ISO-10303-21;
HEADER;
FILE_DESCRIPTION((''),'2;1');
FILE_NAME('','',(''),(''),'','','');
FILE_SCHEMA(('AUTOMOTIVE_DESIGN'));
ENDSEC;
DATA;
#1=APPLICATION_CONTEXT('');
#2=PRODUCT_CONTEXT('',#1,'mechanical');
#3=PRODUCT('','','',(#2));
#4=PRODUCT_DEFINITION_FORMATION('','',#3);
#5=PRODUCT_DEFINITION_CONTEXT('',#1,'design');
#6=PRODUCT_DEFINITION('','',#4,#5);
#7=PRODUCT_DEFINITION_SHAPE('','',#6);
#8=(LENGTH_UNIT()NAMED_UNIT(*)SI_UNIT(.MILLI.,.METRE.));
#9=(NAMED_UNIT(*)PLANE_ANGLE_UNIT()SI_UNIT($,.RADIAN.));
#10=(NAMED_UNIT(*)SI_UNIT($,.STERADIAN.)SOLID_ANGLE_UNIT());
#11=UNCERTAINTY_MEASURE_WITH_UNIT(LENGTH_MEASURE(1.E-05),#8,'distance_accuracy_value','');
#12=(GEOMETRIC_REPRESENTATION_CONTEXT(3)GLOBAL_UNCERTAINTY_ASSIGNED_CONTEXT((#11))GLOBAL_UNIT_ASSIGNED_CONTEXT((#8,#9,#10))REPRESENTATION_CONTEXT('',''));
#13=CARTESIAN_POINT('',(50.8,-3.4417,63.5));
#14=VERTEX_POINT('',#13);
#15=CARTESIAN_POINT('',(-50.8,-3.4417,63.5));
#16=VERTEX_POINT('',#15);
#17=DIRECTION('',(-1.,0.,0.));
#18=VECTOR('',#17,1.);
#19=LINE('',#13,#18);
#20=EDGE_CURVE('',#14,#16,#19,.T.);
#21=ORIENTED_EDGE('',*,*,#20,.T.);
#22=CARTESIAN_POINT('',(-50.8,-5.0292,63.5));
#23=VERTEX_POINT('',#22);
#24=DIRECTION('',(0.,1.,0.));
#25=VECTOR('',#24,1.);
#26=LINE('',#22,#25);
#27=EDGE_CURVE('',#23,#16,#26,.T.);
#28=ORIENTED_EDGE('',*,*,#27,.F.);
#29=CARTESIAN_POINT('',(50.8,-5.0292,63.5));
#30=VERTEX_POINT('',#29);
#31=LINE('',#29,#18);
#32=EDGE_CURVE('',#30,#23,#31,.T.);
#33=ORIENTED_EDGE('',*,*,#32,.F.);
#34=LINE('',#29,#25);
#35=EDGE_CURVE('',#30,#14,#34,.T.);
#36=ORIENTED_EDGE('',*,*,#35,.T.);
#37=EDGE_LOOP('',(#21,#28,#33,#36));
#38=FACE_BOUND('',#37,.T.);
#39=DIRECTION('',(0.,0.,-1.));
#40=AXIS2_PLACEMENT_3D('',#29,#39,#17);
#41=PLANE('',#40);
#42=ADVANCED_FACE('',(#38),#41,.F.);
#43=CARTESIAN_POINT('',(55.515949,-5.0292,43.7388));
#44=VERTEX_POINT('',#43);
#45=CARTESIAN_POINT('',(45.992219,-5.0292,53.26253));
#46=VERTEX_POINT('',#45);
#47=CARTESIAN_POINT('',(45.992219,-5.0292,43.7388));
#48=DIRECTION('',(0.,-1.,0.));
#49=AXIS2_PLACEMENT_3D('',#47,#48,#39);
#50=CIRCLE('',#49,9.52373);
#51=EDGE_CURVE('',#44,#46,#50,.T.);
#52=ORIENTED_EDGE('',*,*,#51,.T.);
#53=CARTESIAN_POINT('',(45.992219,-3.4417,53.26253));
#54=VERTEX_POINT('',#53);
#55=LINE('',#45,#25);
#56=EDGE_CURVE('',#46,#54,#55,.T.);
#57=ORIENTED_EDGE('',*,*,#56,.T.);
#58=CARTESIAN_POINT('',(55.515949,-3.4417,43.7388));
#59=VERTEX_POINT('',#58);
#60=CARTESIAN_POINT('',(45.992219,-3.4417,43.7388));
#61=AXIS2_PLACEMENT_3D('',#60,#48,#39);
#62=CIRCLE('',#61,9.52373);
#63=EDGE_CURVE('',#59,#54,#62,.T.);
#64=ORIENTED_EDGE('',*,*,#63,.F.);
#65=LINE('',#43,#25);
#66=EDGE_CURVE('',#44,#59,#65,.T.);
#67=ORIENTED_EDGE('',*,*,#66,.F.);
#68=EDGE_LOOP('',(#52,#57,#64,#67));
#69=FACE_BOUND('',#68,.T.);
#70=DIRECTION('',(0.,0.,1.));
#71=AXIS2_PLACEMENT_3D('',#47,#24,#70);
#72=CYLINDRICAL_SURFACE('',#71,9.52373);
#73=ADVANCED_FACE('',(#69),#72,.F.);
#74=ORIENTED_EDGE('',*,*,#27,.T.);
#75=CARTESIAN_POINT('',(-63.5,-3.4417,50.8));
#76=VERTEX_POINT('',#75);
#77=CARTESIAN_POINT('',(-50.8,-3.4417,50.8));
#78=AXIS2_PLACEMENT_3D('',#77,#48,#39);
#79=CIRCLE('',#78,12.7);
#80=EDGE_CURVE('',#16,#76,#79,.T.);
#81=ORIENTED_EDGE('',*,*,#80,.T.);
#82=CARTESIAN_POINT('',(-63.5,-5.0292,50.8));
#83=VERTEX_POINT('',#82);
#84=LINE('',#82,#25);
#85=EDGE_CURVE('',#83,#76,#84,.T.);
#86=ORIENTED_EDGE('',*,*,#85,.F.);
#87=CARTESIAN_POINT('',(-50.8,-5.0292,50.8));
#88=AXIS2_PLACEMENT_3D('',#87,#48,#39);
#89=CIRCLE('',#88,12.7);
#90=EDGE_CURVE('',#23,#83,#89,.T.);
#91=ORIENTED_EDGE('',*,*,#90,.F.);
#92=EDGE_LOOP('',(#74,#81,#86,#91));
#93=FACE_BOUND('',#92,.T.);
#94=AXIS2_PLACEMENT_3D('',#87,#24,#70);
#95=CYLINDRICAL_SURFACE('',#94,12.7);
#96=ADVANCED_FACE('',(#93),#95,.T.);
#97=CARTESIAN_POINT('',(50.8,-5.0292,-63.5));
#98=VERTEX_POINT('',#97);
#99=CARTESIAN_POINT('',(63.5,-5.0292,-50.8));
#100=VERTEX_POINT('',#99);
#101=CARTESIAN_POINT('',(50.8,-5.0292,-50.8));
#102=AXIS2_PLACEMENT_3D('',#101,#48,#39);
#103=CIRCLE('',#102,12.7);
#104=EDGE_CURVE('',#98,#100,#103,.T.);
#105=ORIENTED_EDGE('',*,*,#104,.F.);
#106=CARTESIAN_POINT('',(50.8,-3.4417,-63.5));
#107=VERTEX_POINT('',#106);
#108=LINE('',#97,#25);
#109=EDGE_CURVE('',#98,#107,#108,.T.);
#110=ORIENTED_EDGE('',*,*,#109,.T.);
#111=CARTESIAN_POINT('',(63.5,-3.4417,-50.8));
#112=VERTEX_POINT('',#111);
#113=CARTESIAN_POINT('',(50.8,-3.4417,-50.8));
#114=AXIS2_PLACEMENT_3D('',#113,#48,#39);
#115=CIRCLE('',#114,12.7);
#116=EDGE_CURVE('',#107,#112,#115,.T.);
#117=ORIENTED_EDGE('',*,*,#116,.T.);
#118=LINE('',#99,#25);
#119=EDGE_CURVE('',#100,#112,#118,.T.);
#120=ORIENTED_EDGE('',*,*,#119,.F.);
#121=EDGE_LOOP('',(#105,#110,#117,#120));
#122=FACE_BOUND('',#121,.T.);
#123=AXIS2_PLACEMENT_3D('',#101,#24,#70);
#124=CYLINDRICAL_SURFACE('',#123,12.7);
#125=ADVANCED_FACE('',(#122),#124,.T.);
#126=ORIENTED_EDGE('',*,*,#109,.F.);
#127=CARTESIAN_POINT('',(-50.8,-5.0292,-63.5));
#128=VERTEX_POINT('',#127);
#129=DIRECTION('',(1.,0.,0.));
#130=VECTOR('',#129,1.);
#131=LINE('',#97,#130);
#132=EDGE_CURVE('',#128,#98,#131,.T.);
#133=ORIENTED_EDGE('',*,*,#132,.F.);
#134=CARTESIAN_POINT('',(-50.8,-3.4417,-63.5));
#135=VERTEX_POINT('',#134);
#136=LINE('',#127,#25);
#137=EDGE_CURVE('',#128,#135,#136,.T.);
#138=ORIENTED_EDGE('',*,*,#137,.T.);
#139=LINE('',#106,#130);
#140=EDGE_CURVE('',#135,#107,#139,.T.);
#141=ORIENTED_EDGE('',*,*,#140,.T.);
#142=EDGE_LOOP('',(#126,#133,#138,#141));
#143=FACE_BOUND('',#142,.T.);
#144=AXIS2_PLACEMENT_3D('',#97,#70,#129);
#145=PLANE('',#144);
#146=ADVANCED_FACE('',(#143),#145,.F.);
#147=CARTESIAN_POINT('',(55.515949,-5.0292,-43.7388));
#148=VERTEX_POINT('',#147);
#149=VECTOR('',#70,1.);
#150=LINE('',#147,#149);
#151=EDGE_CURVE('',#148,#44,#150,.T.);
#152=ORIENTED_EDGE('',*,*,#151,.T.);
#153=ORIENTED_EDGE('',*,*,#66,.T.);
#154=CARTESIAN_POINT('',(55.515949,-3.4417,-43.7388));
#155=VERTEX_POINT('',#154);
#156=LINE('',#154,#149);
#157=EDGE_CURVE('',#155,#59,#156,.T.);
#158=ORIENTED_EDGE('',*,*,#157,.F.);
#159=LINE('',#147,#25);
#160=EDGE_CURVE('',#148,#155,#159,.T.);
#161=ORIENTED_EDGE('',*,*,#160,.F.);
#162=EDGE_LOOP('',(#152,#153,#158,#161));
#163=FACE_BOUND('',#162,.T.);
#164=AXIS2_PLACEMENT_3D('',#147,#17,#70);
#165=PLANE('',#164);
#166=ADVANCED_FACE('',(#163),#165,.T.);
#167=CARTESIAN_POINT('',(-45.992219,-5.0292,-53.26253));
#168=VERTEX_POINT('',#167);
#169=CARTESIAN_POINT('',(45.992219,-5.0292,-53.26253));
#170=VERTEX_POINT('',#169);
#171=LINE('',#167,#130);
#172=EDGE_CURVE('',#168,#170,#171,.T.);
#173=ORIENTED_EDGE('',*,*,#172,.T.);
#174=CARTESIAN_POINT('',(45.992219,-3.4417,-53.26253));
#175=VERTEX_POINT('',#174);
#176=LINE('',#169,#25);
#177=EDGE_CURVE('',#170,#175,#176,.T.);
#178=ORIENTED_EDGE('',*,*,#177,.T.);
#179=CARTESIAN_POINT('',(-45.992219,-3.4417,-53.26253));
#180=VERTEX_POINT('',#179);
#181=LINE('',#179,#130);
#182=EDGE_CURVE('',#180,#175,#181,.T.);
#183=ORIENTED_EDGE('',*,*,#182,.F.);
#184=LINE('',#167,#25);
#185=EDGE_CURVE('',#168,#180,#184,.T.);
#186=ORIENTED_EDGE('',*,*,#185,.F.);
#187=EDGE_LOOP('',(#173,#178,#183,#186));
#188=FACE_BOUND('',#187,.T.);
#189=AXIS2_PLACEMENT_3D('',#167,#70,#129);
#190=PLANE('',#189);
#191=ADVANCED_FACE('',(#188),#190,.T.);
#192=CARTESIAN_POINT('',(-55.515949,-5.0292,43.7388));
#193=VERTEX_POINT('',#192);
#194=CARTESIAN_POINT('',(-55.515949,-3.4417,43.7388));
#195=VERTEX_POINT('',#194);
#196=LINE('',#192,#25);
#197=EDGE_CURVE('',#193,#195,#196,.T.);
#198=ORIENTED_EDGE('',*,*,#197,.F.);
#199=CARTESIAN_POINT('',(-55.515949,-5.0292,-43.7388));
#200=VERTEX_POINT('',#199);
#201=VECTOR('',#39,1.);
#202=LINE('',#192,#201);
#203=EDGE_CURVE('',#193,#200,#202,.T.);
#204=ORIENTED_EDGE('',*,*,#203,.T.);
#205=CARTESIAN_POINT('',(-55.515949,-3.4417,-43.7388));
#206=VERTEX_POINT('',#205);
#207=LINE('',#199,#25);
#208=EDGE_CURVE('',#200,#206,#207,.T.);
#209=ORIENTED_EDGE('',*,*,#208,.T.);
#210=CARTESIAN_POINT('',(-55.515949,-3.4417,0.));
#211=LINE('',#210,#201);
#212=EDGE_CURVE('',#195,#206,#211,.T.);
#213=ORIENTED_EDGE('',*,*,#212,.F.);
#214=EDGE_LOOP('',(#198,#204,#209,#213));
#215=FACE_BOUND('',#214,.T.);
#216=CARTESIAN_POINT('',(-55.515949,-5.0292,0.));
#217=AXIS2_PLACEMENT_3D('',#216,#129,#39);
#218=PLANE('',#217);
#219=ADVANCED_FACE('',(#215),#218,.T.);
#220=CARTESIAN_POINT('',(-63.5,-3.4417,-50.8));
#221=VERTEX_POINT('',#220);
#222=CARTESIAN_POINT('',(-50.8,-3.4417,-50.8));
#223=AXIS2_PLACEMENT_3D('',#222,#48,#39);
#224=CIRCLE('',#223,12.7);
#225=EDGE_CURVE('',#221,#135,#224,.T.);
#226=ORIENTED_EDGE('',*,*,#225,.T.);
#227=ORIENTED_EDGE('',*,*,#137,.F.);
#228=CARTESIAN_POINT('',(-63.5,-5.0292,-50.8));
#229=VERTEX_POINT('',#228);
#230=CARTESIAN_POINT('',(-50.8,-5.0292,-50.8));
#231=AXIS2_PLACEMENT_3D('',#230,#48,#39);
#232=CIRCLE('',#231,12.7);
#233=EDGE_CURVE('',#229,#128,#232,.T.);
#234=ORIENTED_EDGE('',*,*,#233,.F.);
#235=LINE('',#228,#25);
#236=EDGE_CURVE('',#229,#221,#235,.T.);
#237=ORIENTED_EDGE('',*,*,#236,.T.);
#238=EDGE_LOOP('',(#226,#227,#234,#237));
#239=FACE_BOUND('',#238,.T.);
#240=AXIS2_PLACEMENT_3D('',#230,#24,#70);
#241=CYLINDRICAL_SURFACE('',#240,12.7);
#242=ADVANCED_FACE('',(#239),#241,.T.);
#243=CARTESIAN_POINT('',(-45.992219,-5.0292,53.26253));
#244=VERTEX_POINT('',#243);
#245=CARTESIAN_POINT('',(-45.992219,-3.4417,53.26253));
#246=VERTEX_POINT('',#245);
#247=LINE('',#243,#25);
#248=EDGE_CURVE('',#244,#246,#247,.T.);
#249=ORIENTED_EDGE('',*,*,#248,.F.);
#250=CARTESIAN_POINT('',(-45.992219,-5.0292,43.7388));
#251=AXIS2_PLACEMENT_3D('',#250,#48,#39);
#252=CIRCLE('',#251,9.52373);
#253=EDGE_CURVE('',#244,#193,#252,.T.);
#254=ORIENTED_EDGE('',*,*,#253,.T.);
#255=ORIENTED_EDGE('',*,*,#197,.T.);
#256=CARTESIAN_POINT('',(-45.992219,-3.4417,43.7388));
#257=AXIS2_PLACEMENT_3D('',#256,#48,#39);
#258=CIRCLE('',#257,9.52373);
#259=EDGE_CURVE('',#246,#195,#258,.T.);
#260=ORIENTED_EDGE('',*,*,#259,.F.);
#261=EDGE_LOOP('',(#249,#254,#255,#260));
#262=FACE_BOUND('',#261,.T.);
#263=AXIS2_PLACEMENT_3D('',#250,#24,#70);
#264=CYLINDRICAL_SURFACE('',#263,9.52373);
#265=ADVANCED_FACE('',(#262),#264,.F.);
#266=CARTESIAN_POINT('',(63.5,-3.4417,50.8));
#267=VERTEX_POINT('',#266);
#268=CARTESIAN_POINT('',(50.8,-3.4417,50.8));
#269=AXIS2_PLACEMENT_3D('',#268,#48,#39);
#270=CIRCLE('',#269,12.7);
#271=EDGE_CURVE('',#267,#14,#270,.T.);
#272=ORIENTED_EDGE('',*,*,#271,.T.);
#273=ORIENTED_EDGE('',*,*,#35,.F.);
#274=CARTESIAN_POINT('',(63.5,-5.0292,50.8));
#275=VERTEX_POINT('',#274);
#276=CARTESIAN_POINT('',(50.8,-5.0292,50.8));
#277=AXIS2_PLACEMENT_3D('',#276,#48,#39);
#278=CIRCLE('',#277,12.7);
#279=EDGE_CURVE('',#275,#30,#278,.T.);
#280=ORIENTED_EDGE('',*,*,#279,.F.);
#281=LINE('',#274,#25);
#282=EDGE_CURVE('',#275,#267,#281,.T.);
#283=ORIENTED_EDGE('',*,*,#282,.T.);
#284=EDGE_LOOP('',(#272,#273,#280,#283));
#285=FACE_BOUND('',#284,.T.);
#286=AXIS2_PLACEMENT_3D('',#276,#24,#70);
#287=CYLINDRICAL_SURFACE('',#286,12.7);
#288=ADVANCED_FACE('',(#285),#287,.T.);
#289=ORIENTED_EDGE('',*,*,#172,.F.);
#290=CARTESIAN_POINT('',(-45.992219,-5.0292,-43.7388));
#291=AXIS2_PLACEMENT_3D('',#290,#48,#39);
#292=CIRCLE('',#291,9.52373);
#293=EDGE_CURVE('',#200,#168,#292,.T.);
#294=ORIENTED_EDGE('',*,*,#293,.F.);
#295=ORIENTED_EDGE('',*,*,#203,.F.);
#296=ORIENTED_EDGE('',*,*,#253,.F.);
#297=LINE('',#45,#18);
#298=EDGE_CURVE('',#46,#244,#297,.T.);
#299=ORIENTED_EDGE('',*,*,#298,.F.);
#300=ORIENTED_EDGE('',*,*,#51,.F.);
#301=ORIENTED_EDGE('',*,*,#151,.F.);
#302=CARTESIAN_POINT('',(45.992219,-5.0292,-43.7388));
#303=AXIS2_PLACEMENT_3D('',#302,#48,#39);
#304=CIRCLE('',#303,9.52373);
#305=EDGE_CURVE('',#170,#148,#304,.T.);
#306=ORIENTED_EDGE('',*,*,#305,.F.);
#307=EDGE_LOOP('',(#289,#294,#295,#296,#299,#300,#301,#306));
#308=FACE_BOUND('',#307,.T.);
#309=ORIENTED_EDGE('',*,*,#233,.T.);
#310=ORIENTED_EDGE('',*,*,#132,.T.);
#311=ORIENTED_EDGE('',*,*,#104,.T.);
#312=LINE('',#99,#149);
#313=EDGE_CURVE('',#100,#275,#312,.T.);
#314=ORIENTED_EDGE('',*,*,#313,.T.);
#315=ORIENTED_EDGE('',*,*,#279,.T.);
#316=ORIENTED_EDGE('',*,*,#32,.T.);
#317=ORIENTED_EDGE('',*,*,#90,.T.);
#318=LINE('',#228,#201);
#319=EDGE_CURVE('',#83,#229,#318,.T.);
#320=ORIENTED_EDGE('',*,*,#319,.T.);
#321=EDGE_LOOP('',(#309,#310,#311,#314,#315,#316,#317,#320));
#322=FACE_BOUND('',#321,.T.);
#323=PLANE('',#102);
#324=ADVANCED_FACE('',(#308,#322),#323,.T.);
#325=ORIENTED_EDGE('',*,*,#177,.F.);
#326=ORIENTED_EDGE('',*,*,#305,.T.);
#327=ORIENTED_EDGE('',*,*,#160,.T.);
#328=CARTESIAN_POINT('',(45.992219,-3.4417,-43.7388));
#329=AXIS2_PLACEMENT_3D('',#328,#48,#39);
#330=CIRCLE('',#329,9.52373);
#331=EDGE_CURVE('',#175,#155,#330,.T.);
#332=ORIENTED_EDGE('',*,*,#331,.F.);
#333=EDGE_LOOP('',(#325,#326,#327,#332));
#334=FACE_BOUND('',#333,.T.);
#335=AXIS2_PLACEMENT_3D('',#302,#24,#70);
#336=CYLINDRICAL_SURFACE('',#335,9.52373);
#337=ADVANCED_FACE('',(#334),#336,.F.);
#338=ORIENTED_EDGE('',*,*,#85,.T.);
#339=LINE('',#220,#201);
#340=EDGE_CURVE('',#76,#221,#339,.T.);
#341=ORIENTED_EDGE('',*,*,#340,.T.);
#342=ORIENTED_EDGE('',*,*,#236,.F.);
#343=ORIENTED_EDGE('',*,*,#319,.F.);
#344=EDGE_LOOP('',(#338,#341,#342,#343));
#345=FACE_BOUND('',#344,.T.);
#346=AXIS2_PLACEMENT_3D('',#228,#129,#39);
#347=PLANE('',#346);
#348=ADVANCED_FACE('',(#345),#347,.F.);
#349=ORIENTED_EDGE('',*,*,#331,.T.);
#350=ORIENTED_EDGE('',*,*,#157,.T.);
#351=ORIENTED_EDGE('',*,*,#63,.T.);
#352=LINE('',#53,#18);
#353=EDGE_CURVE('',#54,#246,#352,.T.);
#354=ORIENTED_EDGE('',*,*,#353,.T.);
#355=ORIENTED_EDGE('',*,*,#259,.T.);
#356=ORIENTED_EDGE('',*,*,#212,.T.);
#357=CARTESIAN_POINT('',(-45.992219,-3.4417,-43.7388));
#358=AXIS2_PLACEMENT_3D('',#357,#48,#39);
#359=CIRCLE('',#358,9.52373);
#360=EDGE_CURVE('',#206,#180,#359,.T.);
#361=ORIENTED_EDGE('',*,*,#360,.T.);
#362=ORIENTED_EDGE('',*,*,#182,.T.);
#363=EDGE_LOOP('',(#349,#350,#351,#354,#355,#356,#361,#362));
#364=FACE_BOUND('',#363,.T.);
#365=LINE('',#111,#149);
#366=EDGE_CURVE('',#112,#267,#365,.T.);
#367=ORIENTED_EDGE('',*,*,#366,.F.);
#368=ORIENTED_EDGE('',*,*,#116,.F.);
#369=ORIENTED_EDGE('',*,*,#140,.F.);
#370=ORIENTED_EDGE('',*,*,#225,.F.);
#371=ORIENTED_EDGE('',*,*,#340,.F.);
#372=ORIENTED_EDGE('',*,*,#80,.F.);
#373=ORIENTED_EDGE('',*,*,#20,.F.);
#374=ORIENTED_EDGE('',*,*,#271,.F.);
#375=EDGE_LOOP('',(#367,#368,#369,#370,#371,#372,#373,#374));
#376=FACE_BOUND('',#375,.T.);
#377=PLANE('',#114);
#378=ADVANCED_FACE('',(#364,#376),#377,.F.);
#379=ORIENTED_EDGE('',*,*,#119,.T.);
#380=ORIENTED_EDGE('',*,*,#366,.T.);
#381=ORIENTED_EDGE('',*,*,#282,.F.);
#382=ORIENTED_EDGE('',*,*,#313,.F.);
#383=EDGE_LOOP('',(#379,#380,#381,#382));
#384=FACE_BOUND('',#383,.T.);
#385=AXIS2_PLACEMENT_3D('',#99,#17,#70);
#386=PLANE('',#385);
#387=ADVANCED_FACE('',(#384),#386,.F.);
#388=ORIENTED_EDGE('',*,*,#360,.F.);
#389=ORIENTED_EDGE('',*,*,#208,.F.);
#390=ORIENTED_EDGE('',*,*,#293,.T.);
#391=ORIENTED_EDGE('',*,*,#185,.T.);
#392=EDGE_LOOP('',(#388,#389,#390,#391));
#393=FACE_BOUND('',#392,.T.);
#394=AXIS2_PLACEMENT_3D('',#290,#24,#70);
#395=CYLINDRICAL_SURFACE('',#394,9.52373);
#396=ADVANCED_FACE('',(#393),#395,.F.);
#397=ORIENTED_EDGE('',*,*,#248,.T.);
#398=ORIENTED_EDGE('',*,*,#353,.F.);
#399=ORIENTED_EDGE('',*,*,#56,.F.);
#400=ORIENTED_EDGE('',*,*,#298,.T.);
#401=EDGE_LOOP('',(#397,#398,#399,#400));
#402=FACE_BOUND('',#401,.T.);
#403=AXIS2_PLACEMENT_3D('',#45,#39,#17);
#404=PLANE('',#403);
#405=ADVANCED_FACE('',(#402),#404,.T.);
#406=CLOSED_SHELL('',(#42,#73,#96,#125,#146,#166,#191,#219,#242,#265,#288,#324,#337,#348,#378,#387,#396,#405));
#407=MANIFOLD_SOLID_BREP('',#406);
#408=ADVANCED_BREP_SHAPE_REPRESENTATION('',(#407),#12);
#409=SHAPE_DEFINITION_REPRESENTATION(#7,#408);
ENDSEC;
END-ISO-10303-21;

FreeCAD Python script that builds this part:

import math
import FreeCAD as App
import Part
import Sketcher

V = App.Vector
Q = App.Units.Quantity

doc = App.newDocument("Part")
body = doc.addObject("PartDesign::Body", "Body")

# Sketch on XZ plane
sketch1 = doc.addObject("Sketcher::SketchObject", "Sketch")
body.addObject(sketch1)
sketch1.AttachmentSupport = (doc.XZ_Plane, [""])
sketch1.MapMode = "FlatFace"
sketch1.AttachmentOffset = App.Placement(V(0, 0, 0.1355 * 25.4), App.Rotation())
sketch1.addGeometry([
    Part.LineSegment(V(-50.8, -63.5, 0), V(50.8, -63.5, 0)),  # 0
    Part.ArcOfCircle(Part.Circle(V(50.8, -50.8, 0), V(0, 0, 1), 12.7), math.radians(-90), math.radians(0)),  # 1
    Part.LineSegment(V(63.5, -50.8, 0), V(63.5, 50.8, 0)),  # 2
    Part.ArcOfCircle(Part.Circle(V(50.8, 50.8, 0), V(0, 0, 1), 12.7), math.radians(0), math.radians(90)),  # 3
    Part.LineSegment(V(50.8, 63.5, 0), V(-50.8, 63.5, 0)),  # 4
    Part.ArcOfCircle(Part.Circle(V(-50.8, 50.8, 0), V(0, 0, 1), 12.7), math.radians(90), math.radians(180)),  # 5
    Part.LineSegment(V(-63.5, 50.8, 0), V(-63.5, -50.8, 0)),  # 6
    Part.ArcOfCircle(Part.Circle(V(-50.8, -50.8, 0), V(0, 0, 1), 12.7), math.radians(180), math.radians(270)),  # 7
    Part.ArcOfCircle(Part.Circle(V(-45.992219, -43.7388, 0), V(0, 0, 1), 9.52373), math.radians(-180), math.radians(-90)),  # 8
    Part.LineSegment(V(-55.515949, -43.7388, 0), V(-55.515949, 43.7388, 0)),  # 9
    Part.ArcOfCircle(Part.Circle(V(-45.992219, 43.7388, 0), V(0, 0, 1), 9.52373), math.radians(90), math.radians(180)),  # 10
    Part.LineSegment(V(-45.992219, 53.26253, 0), V(45.992219, 53.26253, 0)),  # 11
    Part.ArcOfCircle(Part.Circle(V(45.992219, 43.7388, 0), V(0, 0, 1), 9.52373), math.radians(0), math.radians(90)),  # 12
    Part.LineSegment(V(55.515949, 43.7388, 0), V(55.515949, -43.7388, 0)),  # 13
    Part.ArcOfCircle(Part.Circle(V(45.992219, -43.7388, 0), V(0, 0, 1), 9.52373), math.radians(-90), math.radians(0)),  # 14
    Part.LineSegment(V(45.992219, -53.26253, 0), V(-45.992219, -53.26253, 0)),  # 15
], False)
sketch1.addConstraint([
    Sketcher.Constraint("Tangent", 0, 2, 1, 1),
    Sketcher.Constraint("Tangent", 1, 2, 2, 1),
    Sketcher.Constraint("Tangent", 2, 2, 3, 1),
    Sketcher.Constraint("Tangent", 3, 2, 4, 1),
    Sketcher.Constraint("Tangent", 4, 2, 5, 1),
    Sketcher.Constraint("Tangent", 5, 2, 6, 1),
    Sketcher.Constraint("Tangent", 6, 2, 7, 1),
    Sketcher.Constraint("Tangent", 7, 2, 0, 1),
    Sketcher.Constraint("Tangent", 8, 1, 9, 1),
    Sketcher.Constraint("Tangent", 9, 2, 10, 2),
    Sketcher.Constraint("Tangent", 10, 1, 11, 1),
    Sketcher.Constraint("Tangent", 11, 2, 12, 2),
    Sketcher.Constraint("Tangent", 12, 1, 13, 1),
    Sketcher.Constraint("Tangent", 13, 2, 14, 2),
    Sketcher.Constraint("Tangent", 14, 1, 15, 1),
    Sketcher.Constraint("Tangent", 15, 2, 8, 2),
    Sketcher.Constraint("Horizontal", 0),
    Sketcher.Constraint("Vertical", 2),
    Sketcher.Constraint("Horizontal", 4),
    Sketcher.Constraint("Vertical", 6),
    Sketcher.Constraint("Vertical", 9),
    Sketcher.Constraint("Horizontal", 11),
    Sketcher.Constraint("Vertical", 13),
    Sketcher.Constraint("Horizontal", 15),
    Sketcher.Constraint("Equal", 1, 3),
    Sketcher.Constraint("Equal", 3, 5),
    Sketcher.Constraint("Equal", 5, 7),
    Sketcher.Constraint("Equal", 8, 10),
    Sketcher.Constraint("Equal", 10, 12),
    Sketcher.Constraint("Equal", 12, 14),
    Sketcher.Constraint("Symmetric", 1, 3, 5, 3, -1, 1),
    Sketcher.Constraint("Symmetric", 8, 3, 12, 3, -1, 1),
    Sketcher.Constraint("Equal", 4, 2),
    Sketcher.Constraint("Radius", 1, Q("0.5 in")),
    Sketcher.Constraint("DistanceX", 0, 1, 0, 2, Q("4 in")),
    Sketcher.Constraint("DistanceY", 9, 1, 9, 2, Q("3.444 in")),
    Sketcher.Constraint("Radius", 8, 9.52373),
    Sketcher.Constraint("DistanceX", 11, 1, 11, 2, 91.984438),
])
pad1 = doc.addObject("PartDesign::Pad", "Pad")
body.addObject(pad1)
pad1.Profile = sketch1
pad1.Length = Q("0.0625 in")

doc.recompute()
